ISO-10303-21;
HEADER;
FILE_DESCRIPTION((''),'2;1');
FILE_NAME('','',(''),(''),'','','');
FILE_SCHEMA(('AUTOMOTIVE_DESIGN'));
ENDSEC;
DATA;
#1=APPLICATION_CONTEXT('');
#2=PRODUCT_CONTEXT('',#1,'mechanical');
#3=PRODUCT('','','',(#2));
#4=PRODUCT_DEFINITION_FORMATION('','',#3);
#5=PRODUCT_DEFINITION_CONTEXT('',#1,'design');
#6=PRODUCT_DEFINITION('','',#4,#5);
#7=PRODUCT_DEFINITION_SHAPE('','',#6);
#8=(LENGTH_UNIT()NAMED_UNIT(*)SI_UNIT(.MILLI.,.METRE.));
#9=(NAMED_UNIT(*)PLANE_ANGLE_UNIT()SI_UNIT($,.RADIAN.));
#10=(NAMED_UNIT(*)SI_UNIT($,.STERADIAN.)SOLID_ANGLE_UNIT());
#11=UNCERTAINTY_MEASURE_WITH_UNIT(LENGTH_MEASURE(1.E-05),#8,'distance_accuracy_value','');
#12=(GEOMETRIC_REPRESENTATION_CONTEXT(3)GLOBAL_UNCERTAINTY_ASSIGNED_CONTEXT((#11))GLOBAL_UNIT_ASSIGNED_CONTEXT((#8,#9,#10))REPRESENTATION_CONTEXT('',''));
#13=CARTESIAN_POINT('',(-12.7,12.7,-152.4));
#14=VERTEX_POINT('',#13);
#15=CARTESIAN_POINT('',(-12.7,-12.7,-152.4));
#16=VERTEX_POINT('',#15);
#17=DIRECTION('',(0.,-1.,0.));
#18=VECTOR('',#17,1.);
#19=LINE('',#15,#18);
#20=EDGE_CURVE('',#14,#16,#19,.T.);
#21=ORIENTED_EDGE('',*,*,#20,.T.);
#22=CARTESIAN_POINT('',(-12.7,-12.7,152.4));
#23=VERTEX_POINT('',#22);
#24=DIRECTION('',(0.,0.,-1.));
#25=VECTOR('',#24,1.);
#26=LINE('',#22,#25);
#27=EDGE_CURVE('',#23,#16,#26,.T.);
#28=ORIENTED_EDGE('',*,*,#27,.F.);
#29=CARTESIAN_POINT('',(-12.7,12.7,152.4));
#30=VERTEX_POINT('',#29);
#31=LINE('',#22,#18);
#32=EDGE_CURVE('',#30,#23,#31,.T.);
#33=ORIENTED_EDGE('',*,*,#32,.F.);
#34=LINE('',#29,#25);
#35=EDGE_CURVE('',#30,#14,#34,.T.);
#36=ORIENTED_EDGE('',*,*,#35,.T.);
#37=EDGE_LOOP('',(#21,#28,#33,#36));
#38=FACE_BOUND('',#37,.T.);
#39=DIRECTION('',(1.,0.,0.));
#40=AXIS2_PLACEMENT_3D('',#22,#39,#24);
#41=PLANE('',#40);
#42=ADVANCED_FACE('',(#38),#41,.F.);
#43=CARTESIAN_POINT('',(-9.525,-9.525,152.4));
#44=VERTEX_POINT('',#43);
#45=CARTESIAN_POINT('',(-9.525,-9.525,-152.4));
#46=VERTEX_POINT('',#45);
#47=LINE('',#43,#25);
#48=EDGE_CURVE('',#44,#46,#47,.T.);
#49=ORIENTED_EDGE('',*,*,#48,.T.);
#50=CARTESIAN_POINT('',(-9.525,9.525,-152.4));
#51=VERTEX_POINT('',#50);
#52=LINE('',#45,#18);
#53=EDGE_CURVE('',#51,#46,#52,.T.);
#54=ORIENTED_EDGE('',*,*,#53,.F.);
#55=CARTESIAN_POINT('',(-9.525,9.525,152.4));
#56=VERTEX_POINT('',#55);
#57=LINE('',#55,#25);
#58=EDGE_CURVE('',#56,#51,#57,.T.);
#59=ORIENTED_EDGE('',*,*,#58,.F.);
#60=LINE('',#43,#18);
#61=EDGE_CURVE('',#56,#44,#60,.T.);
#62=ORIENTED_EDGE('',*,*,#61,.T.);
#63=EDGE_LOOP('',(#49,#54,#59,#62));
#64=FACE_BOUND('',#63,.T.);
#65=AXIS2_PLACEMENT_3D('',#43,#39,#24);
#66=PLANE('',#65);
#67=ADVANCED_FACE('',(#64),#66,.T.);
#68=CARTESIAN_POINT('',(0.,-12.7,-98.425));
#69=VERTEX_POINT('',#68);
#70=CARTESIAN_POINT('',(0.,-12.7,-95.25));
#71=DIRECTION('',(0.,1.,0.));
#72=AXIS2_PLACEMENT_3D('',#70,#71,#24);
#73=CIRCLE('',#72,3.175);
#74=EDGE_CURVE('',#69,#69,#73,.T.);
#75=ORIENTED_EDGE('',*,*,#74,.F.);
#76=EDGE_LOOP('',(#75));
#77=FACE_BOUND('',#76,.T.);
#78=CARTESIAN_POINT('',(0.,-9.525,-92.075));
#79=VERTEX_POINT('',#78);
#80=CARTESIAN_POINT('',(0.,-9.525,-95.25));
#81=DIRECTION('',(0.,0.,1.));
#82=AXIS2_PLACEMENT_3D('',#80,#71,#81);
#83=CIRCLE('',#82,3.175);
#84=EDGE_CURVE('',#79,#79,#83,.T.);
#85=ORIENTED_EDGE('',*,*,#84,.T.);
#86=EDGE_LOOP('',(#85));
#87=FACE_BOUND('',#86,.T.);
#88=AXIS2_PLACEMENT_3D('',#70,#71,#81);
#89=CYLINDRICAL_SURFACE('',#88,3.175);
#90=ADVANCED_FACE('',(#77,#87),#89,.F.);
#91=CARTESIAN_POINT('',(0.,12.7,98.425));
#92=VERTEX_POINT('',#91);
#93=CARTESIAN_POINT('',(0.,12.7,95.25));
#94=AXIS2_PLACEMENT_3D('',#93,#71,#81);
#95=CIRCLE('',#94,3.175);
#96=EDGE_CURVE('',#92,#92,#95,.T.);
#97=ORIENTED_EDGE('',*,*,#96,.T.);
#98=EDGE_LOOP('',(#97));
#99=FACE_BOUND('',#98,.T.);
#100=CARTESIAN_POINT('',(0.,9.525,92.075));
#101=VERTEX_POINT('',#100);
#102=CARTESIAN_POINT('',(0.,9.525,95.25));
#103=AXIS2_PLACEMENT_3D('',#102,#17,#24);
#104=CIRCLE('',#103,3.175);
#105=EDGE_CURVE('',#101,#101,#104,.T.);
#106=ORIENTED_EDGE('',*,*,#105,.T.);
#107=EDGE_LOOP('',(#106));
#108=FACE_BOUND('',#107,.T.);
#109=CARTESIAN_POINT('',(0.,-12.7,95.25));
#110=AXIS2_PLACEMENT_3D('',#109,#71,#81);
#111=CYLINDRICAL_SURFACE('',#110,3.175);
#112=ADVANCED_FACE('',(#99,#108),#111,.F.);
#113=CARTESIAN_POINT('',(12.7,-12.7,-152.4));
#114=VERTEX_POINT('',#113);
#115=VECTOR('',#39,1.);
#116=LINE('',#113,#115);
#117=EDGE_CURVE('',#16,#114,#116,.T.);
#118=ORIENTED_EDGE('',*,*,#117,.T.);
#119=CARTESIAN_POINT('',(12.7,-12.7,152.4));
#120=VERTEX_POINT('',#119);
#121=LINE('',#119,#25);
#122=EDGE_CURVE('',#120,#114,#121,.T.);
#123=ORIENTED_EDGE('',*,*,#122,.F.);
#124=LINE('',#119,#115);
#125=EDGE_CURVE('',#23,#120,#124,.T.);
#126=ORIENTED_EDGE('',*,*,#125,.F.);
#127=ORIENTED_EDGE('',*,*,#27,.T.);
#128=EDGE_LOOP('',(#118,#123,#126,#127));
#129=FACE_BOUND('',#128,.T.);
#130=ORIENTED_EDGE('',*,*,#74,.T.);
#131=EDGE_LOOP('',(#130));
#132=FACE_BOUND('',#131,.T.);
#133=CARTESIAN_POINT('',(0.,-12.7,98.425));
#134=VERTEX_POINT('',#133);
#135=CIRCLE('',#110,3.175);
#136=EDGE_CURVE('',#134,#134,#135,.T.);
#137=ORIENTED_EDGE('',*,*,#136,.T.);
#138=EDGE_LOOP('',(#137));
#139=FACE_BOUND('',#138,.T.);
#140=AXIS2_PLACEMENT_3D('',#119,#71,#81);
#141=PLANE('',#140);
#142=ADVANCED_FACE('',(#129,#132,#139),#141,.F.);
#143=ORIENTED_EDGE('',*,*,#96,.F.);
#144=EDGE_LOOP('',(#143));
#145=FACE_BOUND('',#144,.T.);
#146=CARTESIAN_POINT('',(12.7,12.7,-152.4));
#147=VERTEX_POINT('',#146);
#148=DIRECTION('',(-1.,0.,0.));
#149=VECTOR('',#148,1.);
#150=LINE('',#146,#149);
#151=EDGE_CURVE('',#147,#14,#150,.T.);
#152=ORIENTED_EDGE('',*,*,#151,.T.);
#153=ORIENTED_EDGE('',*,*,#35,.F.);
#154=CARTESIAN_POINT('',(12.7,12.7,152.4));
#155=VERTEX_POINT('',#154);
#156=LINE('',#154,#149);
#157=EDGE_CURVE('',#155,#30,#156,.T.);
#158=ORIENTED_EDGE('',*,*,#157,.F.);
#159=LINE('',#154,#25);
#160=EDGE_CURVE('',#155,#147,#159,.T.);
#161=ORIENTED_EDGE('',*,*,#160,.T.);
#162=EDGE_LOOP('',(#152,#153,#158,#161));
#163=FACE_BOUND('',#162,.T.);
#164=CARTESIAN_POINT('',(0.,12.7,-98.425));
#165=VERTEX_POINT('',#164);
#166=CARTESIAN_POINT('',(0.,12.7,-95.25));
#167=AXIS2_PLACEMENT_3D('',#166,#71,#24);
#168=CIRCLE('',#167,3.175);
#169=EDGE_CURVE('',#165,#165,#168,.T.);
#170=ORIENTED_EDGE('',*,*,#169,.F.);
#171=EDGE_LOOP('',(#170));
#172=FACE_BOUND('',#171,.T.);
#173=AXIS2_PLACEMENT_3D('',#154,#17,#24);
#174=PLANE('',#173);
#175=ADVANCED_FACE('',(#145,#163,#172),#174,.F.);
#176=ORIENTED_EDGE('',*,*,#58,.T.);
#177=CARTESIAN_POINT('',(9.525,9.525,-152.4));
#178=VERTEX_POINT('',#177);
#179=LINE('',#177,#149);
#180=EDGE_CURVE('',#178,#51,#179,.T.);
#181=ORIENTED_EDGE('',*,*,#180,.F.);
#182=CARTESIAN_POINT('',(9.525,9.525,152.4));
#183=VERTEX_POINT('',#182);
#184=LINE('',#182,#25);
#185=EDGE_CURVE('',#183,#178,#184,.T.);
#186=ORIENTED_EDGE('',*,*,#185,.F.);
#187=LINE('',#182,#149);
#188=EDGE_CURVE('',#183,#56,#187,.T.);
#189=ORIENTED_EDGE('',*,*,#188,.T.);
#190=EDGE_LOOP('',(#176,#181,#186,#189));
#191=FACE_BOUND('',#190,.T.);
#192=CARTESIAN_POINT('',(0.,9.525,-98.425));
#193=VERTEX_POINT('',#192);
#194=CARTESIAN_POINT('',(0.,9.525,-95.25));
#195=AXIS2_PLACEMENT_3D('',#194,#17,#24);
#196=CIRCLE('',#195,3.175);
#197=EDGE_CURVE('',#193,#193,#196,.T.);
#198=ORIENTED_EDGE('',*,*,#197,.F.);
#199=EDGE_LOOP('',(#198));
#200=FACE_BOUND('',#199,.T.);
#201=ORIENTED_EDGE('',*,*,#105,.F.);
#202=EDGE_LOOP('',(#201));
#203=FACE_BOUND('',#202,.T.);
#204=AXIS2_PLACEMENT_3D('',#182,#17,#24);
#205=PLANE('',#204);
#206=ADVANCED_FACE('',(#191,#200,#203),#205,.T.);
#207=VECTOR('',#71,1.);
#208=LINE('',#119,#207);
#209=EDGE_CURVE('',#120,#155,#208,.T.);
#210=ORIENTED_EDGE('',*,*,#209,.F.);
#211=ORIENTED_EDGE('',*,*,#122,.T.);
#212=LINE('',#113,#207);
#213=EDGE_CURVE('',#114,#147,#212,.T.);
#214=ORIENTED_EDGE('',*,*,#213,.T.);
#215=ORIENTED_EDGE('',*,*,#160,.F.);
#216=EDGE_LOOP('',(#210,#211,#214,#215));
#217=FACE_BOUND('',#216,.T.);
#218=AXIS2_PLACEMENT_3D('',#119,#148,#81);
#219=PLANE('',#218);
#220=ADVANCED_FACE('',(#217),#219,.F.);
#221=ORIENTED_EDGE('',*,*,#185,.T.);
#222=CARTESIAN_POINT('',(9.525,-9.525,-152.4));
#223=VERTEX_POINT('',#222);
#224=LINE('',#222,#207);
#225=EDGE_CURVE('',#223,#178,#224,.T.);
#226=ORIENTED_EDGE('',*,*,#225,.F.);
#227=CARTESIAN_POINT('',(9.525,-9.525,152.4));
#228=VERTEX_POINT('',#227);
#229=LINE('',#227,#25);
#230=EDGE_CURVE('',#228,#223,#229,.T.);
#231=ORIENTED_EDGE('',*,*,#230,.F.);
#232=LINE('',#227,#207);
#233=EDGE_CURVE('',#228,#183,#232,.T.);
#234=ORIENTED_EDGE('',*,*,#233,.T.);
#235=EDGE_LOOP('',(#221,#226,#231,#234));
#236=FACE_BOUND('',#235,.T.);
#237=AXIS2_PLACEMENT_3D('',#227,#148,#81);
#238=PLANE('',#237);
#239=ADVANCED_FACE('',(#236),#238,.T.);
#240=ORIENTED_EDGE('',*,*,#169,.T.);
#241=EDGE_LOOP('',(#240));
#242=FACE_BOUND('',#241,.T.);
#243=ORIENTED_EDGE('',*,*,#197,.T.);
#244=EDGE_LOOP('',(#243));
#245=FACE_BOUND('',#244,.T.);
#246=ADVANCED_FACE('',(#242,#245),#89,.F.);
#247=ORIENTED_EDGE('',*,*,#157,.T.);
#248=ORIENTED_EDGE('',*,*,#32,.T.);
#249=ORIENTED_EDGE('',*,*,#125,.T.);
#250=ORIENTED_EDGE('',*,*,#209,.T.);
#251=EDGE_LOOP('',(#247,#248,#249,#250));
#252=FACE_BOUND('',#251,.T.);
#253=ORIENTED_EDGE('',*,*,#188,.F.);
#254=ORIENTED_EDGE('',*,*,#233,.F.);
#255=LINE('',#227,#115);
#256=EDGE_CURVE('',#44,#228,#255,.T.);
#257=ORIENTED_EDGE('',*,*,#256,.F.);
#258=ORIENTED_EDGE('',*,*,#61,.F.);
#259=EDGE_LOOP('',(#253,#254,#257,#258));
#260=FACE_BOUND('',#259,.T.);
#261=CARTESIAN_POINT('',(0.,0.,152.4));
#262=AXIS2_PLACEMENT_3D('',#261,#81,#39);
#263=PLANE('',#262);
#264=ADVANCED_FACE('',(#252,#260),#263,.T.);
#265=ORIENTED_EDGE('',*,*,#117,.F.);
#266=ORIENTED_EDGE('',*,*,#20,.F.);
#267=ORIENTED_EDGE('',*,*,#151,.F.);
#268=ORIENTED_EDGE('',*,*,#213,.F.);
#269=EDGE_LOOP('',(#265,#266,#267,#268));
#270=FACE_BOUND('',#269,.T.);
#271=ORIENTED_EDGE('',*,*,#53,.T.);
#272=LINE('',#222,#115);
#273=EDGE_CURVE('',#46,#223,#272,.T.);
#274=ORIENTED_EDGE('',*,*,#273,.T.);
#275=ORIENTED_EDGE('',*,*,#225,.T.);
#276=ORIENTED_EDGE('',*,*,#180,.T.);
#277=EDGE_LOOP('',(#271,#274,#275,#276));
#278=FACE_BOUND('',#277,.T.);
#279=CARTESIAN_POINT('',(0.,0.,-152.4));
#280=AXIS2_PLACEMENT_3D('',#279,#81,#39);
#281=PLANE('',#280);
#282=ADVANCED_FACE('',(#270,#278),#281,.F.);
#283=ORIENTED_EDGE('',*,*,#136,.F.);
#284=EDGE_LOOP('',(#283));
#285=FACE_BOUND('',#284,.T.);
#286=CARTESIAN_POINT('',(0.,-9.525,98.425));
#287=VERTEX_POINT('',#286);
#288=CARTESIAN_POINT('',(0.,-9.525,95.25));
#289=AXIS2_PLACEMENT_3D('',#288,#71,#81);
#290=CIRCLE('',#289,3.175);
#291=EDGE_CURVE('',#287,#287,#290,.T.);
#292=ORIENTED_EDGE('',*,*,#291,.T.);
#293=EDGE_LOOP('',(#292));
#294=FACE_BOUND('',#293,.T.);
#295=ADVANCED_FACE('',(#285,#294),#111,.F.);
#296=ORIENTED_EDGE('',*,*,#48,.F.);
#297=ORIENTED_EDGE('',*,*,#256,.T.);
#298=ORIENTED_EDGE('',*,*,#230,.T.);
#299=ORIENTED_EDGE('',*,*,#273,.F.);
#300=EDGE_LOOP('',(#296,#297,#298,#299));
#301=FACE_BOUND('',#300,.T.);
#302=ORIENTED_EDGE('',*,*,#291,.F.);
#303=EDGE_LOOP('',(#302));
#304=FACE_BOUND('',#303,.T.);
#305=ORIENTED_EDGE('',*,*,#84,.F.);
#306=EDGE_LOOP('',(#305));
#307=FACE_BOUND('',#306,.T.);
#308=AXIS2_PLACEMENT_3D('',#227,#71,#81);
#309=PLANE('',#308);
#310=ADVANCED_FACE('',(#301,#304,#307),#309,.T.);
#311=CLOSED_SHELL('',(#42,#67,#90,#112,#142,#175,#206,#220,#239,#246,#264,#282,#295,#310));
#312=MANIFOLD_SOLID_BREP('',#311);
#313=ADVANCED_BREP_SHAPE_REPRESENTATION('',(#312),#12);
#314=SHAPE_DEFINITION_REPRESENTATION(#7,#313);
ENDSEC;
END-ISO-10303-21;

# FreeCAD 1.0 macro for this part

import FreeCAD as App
import Part
import Sketcher
from FreeCAD import Vector
Q = App.Units.Quantity

doc = App.newDocument("Part")
body = doc.addObject("PartDesign::Body", "Body")

sketch1 = body.newObject("Sketcher::SketchObject", "Sketch")
sketch1.AttachmentSupport = (doc.getObject("XY_Plane"), [""])
sketch1.MapMode = "FlatFace"
sketch1.addGeometry(Part.LineSegment(Vector(-13, 13, 0), Vector(-13, -13, 0)), False)
sketch1.addGeometry(Part.LineSegment(Vector(-13, -13, 0), Vector(13, -13, 0)), False)
sketch1.addGeometry(Part.LineSegment(Vector(13, -13, 0), Vector(13, 13, 0)), False)
sketch1.addGeometry(Part.LineSegment(Vector(13, 13, 0), Vector(-13, 13, 0)), False)
sketch1.addGeometry(Part.LineSegment(Vector(10, -10, 0), Vector(-10, -10, 0)), False)
sketch1.addGeometry(Part.LineSegment(Vector(-10, -10, 0), Vector(-10, 10, 0)), False)
sketch1.addGeometry(Part.LineSegment(Vector(-10, 10, 0), Vector(10, 10, 0)), False)
sketch1.addGeometry(Part.LineSegment(Vector(10, 10, 0), Vector(10, -10, 0)), False)
sketch1.addConstraint(Sketcher.Constraint("Coincident", 0, 2, 1, 1))
sketch1.addConstraint(Sketcher.Constraint("Coincident", 1, 2, 2, 1))
sketch1.addConstraint(Sketcher.Constraint("Coincident", 2, 2, 3, 1))
sketch1.addConstraint(Sketcher.Constraint("Coincident", 3, 2, 0, 1))
sketch1.addConstraint(Sketcher.Constraint("Coincident", 4, 2, 5, 1))
sketch1.addConstraint(Sketcher.Constraint("Coincident", 5, 2, 6, 1))
sketch1.addConstraint(Sketcher.Constraint("Coincident", 6, 2, 7, 1))
sketch1.addConstraint(Sketcher.Constraint("Coincident", 7, 2, 4, 1))
sketch1.addConstraint(Sketcher.Constraint("Vertical", 0))
sketch1.addConstraint(Sketcher.Constraint("Horizontal", 1))
sketch1.addConstraint(Sketcher.Constraint("Vertical", 2))
sketch1.addConstraint(Sketcher.Constraint("Horizontal", 3))
sketch1.addConstraint(Sketcher.Constraint("Horizontal", 4))
sketch1.addConstraint(Sketcher.Constraint("Vertical", 5))
sketch1.addConstraint(Sketcher.Constraint("Horizontal", 6))
sketch1.addConstraint(Sketcher.Constraint("Vertical", 7))
sketch1.addConstraint(Sketcher.Constraint("Symmetric", 0, 2, 2, 2, -1, 1))
sketch1.addConstraint(Sketcher.Constraint("Symmetric", 4, 2, 6, 2, -1, 1))
sketch1.addConstraint(Sketcher.Constraint("Equal", 3, 0))
sketch1.addConstraint(Sketcher.Constraint("Equal", 6, 5))
sketch1.addConstraint(Sketcher.Constraint("DistanceX", 1, 1, 1, 2, Q("1 in")))
sketch1.addConstraint(Sketcher.Constraint("DistanceX", 4, 2, 4, 1, Q("0.75 in")))
pad1 = body.newObject("PartDesign::Pad", "Pad")
pad1.Profile = sketch1
pad1.Type = "TwoLengths"
pad1.Length = Q("6 in")
pad1.Length2 = Q("6 in")

sketch2 = body.newObject("Sketcher::SketchObject", "Sketch001")
sketch2.AttachmentSupport = (doc.getObject("XZ_Plane"), [""])
sketch2.MapMode = "FlatFace"
sketch2.AttachmentOffset = App.Placement(Vector(0, 0, -0.5 * 25.4), App.Rotation())
sketch2.addGeometry(Part.Circle(Vector(0, 95.2, 0), Vector(0, 0, 1), 3.2), False)
sketch2.addGeometry(Part.Circle(Vector(0, -95.2, 0), Vector(0, 0, 1), 3.2), False)
sketch2.addConstraint(Sketcher.Constraint("Equal", 0, 1))
sketch2.addConstraint(Sketcher.Constraint("Symmetric", 0, 3, 1, 3, -1, 1))
sketch2.addConstraint(Sketcher.Constraint("PointOnObject", 0, 3, -2))
sketch2.addConstraint(Sketcher.Constraint("Diameter", 0, Q("0.25 in")))
sketch2.addConstraint(Sketcher.Constraint("DistanceY", 1, 3, 0, 3, Q("7.5 in")))
pocket1 = body.newObject("PartDesign::Pocket", "Pocket")
pocket1.Profile = sketch2
pocket1.Type = "ThroughAll"
pocket1.Reversed = True

doc.recompute()
